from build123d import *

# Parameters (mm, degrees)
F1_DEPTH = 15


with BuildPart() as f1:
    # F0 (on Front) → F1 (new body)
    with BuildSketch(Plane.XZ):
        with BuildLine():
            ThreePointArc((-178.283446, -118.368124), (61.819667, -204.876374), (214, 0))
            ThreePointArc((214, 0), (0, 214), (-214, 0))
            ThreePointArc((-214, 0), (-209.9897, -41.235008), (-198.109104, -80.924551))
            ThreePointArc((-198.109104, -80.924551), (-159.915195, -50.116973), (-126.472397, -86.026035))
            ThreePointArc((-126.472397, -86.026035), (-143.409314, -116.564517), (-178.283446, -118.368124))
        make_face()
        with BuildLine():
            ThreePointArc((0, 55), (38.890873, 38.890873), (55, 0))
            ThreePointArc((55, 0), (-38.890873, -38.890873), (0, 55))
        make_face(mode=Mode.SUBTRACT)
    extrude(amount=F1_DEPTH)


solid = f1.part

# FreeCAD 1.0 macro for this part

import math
import FreeCAD as App
import Part
import Sketcher
from FreeCAD import Vector

doc = App.newDocument("Part")
params = doc.addObject("Spreadsheet::Sheet", "Params")
for row, (alias, value) in enumerate([
    ("sketch1_radius", "214 mm"),
    ("sketch1_radius2", "36 mm"),
    ("sketch1_radius3", "55 mm"),
    ("pad1_length", "15 mm"),
], start=1):
    params.set(f"A{row}", alias)
    params.set(f"B{row}", "=" + value)
    params.setAlias(f"B{row}", alias)

body = doc.addObject("PartDesign::Body", "Body")

# Sketch on XZ plane
sketch1 = body.newObject("Sketcher::SketchObject", "Sketch")
sketch1.AttachmentSupport = (doc.getObject("XZ_Plane"), [""])
sketch1.MapMode = "FlatFace"
sketch1.addGeometry(Part.ArcOfCircle(Part.Circle(Vector(0, 0, 0), Vector(0, 0, 1), 214), math.radians(-146.418535), math.radians(0)), False)
sketch1.addGeometry(Part.ArcOfCircle(Part.Circle(Vector(0, 0, 0), Vector(0, 0, 1), 214), math.radians(0), math.radians(180)), False)
sketch1.addGeometry(Part.ArcOfCircle(Part.Circle(Vector(0.000004, 0, 0), Vector(0, 0, 1), 214.000004), math.radians(-180), math.radians(-157.780733)), False)
sketch1.addGeometry(Part.ArcOfCircle(Part.Circle(Vector(-162.472397, -86.026035, 0), Vector(0, 0, 1), 36), math.radians(0), math.radians(171.853314)), False)
sketch1.addGeometry(Part.ArcOfCircle(Part.Circle(Vector(-162.472397, -86.026035, 0), Vector(0, 0, 1), 36), math.radians(-116.052583), math.radians(0.000001)), False)
sketch1.addGeometry(Part.ArcOfCircle(Part.Circle(Vector(0, 0, 0), Vector(0, 0, 1), 55), math.radians(90), math.radians(360)), False)
sketch1.addGeometry(Part.ArcOfCircle(Part.Circle(Vector(0, 0, 0), Vector(0, 0, 1), 55), math.radians(0), math.radians(90)), False)
sketch1.addConstraint(Sketcher.Constraint("Tangent", 0, 2, 1, 1))
sketch1.addConstraint(Sketcher.Constraint("Tangent", 1, 2, 2, 1))
sketch1.addConstraint(Sketcher.Constraint("Coincident", 2, 2, 3, 2))
sketch1.addConstraint(Sketcher.Constraint("Tangent", 3, 1, 4, 2))
sketch1.addConstraint(Sketcher.Constraint("Coincident", 4, 1, 0, 1))
sketch1.addConstraint(Sketcher.Constraint("Tangent", 5, 1, 6, 2))
sketch1.addConstraint(Sketcher.Constraint("Coincident", 6, 1, 5, 2))
sketch1.addConstraint(Sketcher.Constraint("Coincident", 0, 3, -1, 1))
sketch1.addConstraint(Sketcher.Constraint("Coincident", 5, 3, -1, 1))
sketch1.addConstraint(Sketcher.Constraint("Equal", 0, 1))
sketch1.addConstraint(Sketcher.Constraint("Equal", 3, 4))
sketch1.addConstraint(Sketcher.Constraint("PointOnObject", 0, 2, -1))
sketch1.addConstraint(Sketcher.Constraint("PointOnObject", 1, 2, -1))
sketch1.addConstraint(Sketcher.Constraint("PointOnObject", 5, 1, -2))
sketch1.addConstraint(Sketcher.Constraint("PointOnObject", 6, 1, -1))
sketch1.addConstraint(Sketcher.Constraint("Horizontal", 4, 3, 3, 1))
sketch1.addConstraint(Sketcher.Constraint("Radius", 0, 214.0))
sketch1.addConstraint(Sketcher.Constraint("Radius", 3, 36.0))
sketch1.addConstraint(Sketcher.Constraint("Radius", 5, 55.0))
sketch1.addConstraint(Sketcher.Constraint("Radius", 2, 214.000004))
sketch1.addConstraint(Sketcher.Constraint("DistanceX", 3, 3, 2, 3, 162.472401))
sketch1.addConstraint(Sketcher.Constraint("DistanceX", 4, 1, 4, 3, 15.811049))
sketch1.setExpression("Constraints[16]", "Params.sketch1_radius")
sketch1.setExpression("Constraints[17]", "Params.sketch1_radius2")
sketch1.setExpression("Constraints[18]", "Params.sketch1_radius3")
pad1 = body.newObject("PartDesign::Pad", "Pad")
pad1.Profile = sketch1
pad1.setExpression("Length", "Params.pad1_length")

doc.recompute()
